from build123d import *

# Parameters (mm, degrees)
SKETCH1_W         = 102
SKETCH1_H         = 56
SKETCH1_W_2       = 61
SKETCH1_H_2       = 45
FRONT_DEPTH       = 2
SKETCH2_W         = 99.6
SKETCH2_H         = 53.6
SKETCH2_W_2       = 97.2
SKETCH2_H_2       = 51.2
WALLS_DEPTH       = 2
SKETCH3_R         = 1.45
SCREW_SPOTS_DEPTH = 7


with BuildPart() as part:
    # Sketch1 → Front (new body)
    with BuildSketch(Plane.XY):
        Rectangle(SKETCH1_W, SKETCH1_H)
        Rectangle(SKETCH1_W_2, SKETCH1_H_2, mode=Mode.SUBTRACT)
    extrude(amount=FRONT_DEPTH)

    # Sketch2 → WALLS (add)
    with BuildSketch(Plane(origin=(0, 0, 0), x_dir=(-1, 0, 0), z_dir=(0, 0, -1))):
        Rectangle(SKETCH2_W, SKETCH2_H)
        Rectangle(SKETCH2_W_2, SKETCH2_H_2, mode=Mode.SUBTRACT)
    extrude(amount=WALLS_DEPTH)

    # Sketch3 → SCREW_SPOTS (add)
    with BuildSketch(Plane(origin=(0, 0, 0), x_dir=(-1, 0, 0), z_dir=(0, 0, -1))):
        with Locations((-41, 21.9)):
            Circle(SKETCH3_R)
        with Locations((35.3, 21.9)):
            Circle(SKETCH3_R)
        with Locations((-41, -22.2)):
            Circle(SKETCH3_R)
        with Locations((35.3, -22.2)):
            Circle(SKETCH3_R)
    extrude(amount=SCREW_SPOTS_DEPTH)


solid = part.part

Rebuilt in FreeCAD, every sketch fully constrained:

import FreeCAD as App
import Part
import Sketcher

V = App.Vector
Q = App.Units.Quantity


def add_polygon(sketch, points):
    """Adds a closed chain of lines whose ends are joined by coincident constraints."""
    first, n = sketch.GeometryCount, len(points)
    for a, b in zip(points, points[1:] + points[:1]):
        sketch.addGeometry(Part.LineSegment(App.Vector(*a, 0), App.Vector(*b, 0)), False)
    for i in range(n):
        sketch.addConstraint(Sketcher.Constraint("Coincident", first + i, 2, first + (i + 1) % n, 1))

doc = App.newDocument("Part")
body = doc.addObject("PartDesign::Body", "Body")

sketch1 = doc.addObject("Sketcher::SketchObject", "Sketch")
body.addObject(sketch1)
sketch1.AttachmentSupport = (doc.XY_Plane, [""])
sketch1.MapMode = "FlatFace"
add_polygon(sketch1, [(-51, 28), (-51, -28), (51, -28), (51, 28)])
add_polygon(sketch1, [(30.5, -22.5), (-30.5, -22.5), (-30.5, 22.5), (30.5, 22.5)])
sketch1.addConstraint(Sketcher.Constraint("Vertical", 0))
sketch1.addConstraint(Sketcher.Constraint("Horizontal", 1))
sketch1.addConstraint(Sketcher.Constraint("Vertical", 2))
sketch1.addConstraint(Sketcher.Constraint("Horizontal", 3))
sketch1.addConstraint(Sketcher.Constraint("Horizontal", 4))
sketch1.addConstraint(Sketcher.Constraint("Vertical", 5))
sketch1.addConstraint(Sketcher.Constraint("Horizontal", 6))
sketch1.addConstraint(Sketcher.Constraint("Vertical", 7))
sketch1.addConstraint(Sketcher.Constraint("Symmetric", 0, 2, 2, 2, -1, 1))
sketch1.addConstraint(Sketcher.Constraint("Symmetric", 4, 2, 6, 2, -1, 1))
sketch1.addConstraint(Sketcher.Constraint("DistanceX", 1, 1, 1, 2, Q("102 mm")))
sketch1.addConstraint(Sketcher.Constraint("DistanceX", 4, 2, 4, 1, Q("61 mm")))
sketch1.addConstraint(Sketcher.Constraint("DistanceY", 0, 2, 0, 1, Q("56 mm")))
sketch1.addConstraint(Sketcher.Constraint("DistanceY", 5, 1, 5, 2, Q("45 mm")))
pad1 = doc.addObject("PartDesign::Pad", "Pad")
body.addObject(pad1)
pad1.Profile = sketch1
pad1.Length = 2

sketch2 = doc.addObject("Sketcher::SketchObject", "Sketch001")
body.addObject(sketch2)
sketch2.AttachmentSupport = (doc.XY_Plane, [""])
sketch2.MapMode = "FlatFace"
add_polygon(sketch2, [(49.8, 26.8), (49.8, -26.8), (-49.8, -26.8), (-49.8, 26.8)])
add_polygon(sketch2, [(-48.6, -25.6), (48.6, -25.6), (48.6, 25.6), (-48.6, 25.6)])
sketch2.addConstraint(Sketcher.Constraint("Vertical", 0))
sketch2.addConstraint(Sketcher.Constraint("Horizontal", 1))
sketch2.addConstraint(Sketcher.Constraint("Vertical", 2))
sketch2.addConstraint(Sketcher.Constraint("Horizontal", 3))
sketch2.addConstraint(Sketcher.Constraint("Horizontal", 4))
sketch2.addConstraint(Sketcher.Constraint("Vertical", 5))
sketch2.addConstraint(Sketcher.Constraint("Horizontal", 6))
sketch2.addConstraint(Sketcher.Constraint("Vertical", 7))
sketch2.addConstraint(Sketcher.Constraint("Symmetric", 0, 2, 2, 2, -1, 1))
sketch2.addConstraint(Sketcher.Constraint("Symmetric", 4, 2, 6, 2, -1, 1))
sketch2.addConstraint(Sketcher.Constraint("DistanceX", 1, 2, 1, 1, Q("99.6 mm")))
sketch2.addConstraint(Sketcher.Constraint("DistanceX", 4, 1, 4, 2, Q("97.2 mm")))
sketch2.addConstraint(Sketcher.Constraint("DistanceY", 0, 2, 0, 1, Q("53.6 mm")))
sketch2.addConstraint(Sketcher.Constraint("DistanceY", 5, 1, 5, 2, Q("51.2 mm")))
pad2 = doc.addObject("PartDesign::Pad", "Pad001")
body.addObject(pad2)
pad2.Profile = sketch2
pad2.Length = 2
pad2.Reversed = True

sketch3 = doc.addObject("Sketcher::SketchObject", "Sketch002")
body.addObject(sketch3)
sketch3.AttachmentSupport = (doc.XY_Plane, [""])
sketch3.MapMode = "FlatFace"
sketch3.addGeometry(Part.Circle(V(41, 21.9, 0), V(0, 0, 1), 1.45), False)
sketch3.addGeometry(Part.Circle(V(-35.3, 21.9, 0), V(0, 0, 1), 1.45), False)
sketch3.addGeometry(Part.Circle(V(41, -22.2, 0), V(0, 0, 1), 1.45), False)
sketch3.addGeometry(Part.Circle(V(-35.3, -22.2, 0), V(0, 0, 1), 1.45), False)
sketch3.addConstraint(Sketcher.Constraint("Equal", 0, 1))
sketch3.addConstraint(Sketcher.Constraint("Equal", 1, 2))
sketch3.addConstraint(Sketcher.Constraint("Equal", 2, 3))
sketch3.addConstraint(Sketcher.Constraint("Horizontal", 0, 3, 1, 3))
sketch3.addConstraint(Sketcher.Constraint("Horizontal", 2, 3, 3, 3))
sketch3.addConstraint(Sketcher.Constraint("Vertical", 0, 3, 2, 3))
sketch3.addConstraint(Sketcher.Constraint("Vertical", 1, 3, 3, 3))
sketch3.addConstraint(Sketcher.Constraint("Diameter", 0, Q("2.9 mm")))
sketch3.addConstraint(Sketcher.Constraint("DistanceX", -1, 1, 0, 3, Q("41 mm")))
sketch3.addConstraint(Sketcher.Constraint("DistanceY", -1, 1, 0, 3, Q("21.9 mm")))
sketch3.addConstraint(Sketcher.Constraint("DistanceX", 1, 3, -1, 1, Q("35.3 mm")))
sketch3.addConstraint(Sketcher.Constraint("DistanceY", 2, 3, -1, 1, Q("22.2 mm")))
pad3 = doc.addObject("PartDesign::Pad", "Pad002")
body.addObject(pad3)
pad3.Profile = sketch3
pad3.Length = 7
pad3.Reversed = True

doc.recompute()
